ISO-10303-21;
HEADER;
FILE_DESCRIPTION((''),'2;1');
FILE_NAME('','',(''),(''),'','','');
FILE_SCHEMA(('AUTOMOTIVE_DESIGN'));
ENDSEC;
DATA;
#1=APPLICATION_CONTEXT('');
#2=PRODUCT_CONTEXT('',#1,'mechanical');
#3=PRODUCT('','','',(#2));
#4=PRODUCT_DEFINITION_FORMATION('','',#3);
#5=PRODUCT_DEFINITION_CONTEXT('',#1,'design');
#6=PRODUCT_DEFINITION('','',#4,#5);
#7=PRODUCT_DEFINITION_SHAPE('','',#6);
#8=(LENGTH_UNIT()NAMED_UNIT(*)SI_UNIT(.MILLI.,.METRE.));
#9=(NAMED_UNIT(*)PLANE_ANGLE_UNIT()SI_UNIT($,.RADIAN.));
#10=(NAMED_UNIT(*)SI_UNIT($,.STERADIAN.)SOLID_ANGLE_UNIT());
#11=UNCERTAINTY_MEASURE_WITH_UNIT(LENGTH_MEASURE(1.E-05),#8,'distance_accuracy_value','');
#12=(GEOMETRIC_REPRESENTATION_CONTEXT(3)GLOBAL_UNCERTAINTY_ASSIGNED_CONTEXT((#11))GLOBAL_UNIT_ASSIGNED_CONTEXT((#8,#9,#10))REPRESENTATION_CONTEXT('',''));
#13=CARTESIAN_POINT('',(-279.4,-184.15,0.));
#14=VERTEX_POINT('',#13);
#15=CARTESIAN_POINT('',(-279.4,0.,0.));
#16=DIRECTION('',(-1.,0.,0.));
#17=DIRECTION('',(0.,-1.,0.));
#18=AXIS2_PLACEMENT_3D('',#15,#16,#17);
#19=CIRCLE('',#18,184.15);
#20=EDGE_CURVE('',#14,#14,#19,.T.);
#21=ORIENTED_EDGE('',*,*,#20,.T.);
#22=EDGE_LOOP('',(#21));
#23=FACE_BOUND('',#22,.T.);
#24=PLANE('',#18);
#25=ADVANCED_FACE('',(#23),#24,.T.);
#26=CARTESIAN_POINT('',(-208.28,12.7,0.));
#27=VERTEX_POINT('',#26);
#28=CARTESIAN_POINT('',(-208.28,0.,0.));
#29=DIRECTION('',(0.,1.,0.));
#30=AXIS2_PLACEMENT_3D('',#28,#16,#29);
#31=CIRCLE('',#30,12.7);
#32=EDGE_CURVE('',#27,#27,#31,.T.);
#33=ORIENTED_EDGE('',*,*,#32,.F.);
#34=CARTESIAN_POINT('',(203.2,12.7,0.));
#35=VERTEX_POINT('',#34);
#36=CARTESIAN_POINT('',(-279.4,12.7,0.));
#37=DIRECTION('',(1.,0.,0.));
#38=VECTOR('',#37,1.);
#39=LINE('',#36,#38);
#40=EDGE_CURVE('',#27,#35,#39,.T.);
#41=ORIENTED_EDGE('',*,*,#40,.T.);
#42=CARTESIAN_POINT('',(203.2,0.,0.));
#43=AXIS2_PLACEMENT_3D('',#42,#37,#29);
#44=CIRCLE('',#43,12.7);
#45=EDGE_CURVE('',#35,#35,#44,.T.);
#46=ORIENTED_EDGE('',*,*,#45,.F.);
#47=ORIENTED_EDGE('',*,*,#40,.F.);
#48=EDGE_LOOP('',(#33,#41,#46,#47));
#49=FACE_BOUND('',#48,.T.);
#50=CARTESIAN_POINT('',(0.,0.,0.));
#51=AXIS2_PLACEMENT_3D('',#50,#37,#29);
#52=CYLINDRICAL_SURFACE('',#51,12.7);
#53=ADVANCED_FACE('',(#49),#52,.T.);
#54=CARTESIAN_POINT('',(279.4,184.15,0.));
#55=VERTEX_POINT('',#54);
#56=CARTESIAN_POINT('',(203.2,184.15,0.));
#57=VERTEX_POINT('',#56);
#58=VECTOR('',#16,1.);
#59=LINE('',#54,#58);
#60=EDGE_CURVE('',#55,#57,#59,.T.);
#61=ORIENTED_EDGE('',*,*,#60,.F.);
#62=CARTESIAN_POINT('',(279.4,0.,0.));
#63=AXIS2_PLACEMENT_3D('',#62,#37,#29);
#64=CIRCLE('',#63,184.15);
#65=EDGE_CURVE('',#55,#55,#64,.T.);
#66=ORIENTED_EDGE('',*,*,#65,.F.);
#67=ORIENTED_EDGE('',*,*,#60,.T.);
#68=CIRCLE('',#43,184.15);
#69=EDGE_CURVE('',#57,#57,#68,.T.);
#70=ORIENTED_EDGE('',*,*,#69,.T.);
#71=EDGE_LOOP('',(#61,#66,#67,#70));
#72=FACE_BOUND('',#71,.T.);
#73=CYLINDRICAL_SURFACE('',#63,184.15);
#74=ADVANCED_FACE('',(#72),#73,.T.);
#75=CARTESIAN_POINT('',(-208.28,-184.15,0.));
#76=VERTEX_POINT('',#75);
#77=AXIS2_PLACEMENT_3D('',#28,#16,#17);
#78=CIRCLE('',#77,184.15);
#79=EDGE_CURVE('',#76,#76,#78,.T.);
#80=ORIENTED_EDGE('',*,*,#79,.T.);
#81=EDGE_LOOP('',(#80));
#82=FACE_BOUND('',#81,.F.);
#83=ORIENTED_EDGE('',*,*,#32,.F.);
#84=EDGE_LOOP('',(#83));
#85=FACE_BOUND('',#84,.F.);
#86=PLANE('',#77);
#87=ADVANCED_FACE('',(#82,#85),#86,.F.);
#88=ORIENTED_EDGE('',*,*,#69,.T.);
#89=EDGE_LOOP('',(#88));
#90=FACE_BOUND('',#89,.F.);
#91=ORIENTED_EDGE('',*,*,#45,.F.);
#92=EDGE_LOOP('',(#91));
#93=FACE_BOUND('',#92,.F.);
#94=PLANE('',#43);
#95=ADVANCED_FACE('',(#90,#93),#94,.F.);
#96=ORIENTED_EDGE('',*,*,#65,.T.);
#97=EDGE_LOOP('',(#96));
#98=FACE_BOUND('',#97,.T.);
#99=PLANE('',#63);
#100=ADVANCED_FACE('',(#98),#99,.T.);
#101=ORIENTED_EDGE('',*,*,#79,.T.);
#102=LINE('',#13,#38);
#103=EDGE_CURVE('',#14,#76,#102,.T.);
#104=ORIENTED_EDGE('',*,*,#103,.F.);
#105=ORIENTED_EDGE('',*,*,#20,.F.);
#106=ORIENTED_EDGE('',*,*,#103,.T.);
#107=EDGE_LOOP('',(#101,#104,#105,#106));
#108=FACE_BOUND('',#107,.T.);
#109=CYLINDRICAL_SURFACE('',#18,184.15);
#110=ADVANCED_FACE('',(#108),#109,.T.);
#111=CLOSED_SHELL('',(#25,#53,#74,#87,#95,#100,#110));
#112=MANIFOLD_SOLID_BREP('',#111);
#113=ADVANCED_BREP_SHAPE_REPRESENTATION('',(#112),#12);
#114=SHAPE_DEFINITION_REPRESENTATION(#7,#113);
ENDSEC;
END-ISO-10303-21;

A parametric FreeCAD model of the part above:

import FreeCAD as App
import Part
import Sketcher
Q = App.Units.Quantity

doc = App.newDocument("Part")
body = doc.addObject("PartDesign::Body", "Body")

# Sketch on YZ plane
sketch1 = body.newObject("Sketcher::SketchObject", "Sketch")
sketch1.AttachmentSupport = (doc.getObject("YZ_Plane"), [""])
sketch1.MapMode = "FlatFace"
sketch1.addGeometry(Part.Circle(App.Vector(0, 0, 0), App.Vector(0, 0, 1), 12.7), False)
sketch1.addConstraint([
    Sketcher.Constraint("Coincident", 0, 3, -1, 1),
    Sketcher.Constraint("Diameter", 0, Q("1 in")),
])
pad1 = body.newObject("PartDesign::Pad", "Pad")
pad1.Profile = sketch1
pad1.Length = Q("22 in")
pad1.Midplane = True

# Sketch on YZ plane
sketch2 = body.newObject("Sketcher::SketchObject", "Sketch001")
sketch2.AttachmentSupport = (doc.getObject("YZ_Plane"), [""])
sketch2.MapMode = "FlatFace"
sketch2.AttachmentOffset = App.Placement(App.Vector(0, 0, 11 * 25.4), App.Rotation())
sketch2.addGeometry([
    Part.Circle(App.Vector(0, 0, 0), App.Vector(0, 0, 1), 184.15),
    Part.Circle(App.Vector(0, 0, 0), App.Vector(0, 0, 1), 12.7),
], False)
sketch2.addConstraint([
    Sketcher.Constraint("Coincident", 0, 3, -1, 1),
    Sketcher.Constraint("Coincident", 1, 3, -1, 1),
    Sketcher.Constraint("Diameter", 1, Q("1 in")),
    Sketcher.Constraint("Diameter", 0, Q("14.5 in")),
])
pad2 = body.newObject("PartDesign::Pad", "Pad001")
pad2.Profile = sketch2
pad2.Length = Q("3 in")
pad2.Reversed = True

# Sketch on YZ plane
sketch3 = body.newObject("Sketcher::SketchObject", "Sketch002")
sketch3.AttachmentSupport = (doc.getObject("YZ_Plane"), [""])
sketch3.MapMode = "FlatFace"
sketch3.AttachmentOffset = App.Placement(App.Vector(0, 0, -11 * 25.4), App.Rotation())
sketch3.addGeometry([
    Part.Circle(App.Vector(0, 0, 0), App.Vector(0, 0, 1), 184.15),
    Part.Circle(App.Vector(0, 0, 0), App.Vector(0, 0, 1), 12.7),
], False)
sketch3.addConstraint([
    Sketcher.Constraint("Coincident", 0, 3, -1, 1),
    Sketcher.Constraint("Coincident", 1, 3, -1, 1),
    Sketcher.Constraint("Diameter", 1, Q("1 in")),
    Sketcher.Constraint("Diameter", 0, Q("14.5 in")),
])
pad3 = body.newObject("PartDesign::Pad", "Pad002")
pad3.Profile = sketch3
pad3.Length = Q("2.8 in")

doc.recompute()
